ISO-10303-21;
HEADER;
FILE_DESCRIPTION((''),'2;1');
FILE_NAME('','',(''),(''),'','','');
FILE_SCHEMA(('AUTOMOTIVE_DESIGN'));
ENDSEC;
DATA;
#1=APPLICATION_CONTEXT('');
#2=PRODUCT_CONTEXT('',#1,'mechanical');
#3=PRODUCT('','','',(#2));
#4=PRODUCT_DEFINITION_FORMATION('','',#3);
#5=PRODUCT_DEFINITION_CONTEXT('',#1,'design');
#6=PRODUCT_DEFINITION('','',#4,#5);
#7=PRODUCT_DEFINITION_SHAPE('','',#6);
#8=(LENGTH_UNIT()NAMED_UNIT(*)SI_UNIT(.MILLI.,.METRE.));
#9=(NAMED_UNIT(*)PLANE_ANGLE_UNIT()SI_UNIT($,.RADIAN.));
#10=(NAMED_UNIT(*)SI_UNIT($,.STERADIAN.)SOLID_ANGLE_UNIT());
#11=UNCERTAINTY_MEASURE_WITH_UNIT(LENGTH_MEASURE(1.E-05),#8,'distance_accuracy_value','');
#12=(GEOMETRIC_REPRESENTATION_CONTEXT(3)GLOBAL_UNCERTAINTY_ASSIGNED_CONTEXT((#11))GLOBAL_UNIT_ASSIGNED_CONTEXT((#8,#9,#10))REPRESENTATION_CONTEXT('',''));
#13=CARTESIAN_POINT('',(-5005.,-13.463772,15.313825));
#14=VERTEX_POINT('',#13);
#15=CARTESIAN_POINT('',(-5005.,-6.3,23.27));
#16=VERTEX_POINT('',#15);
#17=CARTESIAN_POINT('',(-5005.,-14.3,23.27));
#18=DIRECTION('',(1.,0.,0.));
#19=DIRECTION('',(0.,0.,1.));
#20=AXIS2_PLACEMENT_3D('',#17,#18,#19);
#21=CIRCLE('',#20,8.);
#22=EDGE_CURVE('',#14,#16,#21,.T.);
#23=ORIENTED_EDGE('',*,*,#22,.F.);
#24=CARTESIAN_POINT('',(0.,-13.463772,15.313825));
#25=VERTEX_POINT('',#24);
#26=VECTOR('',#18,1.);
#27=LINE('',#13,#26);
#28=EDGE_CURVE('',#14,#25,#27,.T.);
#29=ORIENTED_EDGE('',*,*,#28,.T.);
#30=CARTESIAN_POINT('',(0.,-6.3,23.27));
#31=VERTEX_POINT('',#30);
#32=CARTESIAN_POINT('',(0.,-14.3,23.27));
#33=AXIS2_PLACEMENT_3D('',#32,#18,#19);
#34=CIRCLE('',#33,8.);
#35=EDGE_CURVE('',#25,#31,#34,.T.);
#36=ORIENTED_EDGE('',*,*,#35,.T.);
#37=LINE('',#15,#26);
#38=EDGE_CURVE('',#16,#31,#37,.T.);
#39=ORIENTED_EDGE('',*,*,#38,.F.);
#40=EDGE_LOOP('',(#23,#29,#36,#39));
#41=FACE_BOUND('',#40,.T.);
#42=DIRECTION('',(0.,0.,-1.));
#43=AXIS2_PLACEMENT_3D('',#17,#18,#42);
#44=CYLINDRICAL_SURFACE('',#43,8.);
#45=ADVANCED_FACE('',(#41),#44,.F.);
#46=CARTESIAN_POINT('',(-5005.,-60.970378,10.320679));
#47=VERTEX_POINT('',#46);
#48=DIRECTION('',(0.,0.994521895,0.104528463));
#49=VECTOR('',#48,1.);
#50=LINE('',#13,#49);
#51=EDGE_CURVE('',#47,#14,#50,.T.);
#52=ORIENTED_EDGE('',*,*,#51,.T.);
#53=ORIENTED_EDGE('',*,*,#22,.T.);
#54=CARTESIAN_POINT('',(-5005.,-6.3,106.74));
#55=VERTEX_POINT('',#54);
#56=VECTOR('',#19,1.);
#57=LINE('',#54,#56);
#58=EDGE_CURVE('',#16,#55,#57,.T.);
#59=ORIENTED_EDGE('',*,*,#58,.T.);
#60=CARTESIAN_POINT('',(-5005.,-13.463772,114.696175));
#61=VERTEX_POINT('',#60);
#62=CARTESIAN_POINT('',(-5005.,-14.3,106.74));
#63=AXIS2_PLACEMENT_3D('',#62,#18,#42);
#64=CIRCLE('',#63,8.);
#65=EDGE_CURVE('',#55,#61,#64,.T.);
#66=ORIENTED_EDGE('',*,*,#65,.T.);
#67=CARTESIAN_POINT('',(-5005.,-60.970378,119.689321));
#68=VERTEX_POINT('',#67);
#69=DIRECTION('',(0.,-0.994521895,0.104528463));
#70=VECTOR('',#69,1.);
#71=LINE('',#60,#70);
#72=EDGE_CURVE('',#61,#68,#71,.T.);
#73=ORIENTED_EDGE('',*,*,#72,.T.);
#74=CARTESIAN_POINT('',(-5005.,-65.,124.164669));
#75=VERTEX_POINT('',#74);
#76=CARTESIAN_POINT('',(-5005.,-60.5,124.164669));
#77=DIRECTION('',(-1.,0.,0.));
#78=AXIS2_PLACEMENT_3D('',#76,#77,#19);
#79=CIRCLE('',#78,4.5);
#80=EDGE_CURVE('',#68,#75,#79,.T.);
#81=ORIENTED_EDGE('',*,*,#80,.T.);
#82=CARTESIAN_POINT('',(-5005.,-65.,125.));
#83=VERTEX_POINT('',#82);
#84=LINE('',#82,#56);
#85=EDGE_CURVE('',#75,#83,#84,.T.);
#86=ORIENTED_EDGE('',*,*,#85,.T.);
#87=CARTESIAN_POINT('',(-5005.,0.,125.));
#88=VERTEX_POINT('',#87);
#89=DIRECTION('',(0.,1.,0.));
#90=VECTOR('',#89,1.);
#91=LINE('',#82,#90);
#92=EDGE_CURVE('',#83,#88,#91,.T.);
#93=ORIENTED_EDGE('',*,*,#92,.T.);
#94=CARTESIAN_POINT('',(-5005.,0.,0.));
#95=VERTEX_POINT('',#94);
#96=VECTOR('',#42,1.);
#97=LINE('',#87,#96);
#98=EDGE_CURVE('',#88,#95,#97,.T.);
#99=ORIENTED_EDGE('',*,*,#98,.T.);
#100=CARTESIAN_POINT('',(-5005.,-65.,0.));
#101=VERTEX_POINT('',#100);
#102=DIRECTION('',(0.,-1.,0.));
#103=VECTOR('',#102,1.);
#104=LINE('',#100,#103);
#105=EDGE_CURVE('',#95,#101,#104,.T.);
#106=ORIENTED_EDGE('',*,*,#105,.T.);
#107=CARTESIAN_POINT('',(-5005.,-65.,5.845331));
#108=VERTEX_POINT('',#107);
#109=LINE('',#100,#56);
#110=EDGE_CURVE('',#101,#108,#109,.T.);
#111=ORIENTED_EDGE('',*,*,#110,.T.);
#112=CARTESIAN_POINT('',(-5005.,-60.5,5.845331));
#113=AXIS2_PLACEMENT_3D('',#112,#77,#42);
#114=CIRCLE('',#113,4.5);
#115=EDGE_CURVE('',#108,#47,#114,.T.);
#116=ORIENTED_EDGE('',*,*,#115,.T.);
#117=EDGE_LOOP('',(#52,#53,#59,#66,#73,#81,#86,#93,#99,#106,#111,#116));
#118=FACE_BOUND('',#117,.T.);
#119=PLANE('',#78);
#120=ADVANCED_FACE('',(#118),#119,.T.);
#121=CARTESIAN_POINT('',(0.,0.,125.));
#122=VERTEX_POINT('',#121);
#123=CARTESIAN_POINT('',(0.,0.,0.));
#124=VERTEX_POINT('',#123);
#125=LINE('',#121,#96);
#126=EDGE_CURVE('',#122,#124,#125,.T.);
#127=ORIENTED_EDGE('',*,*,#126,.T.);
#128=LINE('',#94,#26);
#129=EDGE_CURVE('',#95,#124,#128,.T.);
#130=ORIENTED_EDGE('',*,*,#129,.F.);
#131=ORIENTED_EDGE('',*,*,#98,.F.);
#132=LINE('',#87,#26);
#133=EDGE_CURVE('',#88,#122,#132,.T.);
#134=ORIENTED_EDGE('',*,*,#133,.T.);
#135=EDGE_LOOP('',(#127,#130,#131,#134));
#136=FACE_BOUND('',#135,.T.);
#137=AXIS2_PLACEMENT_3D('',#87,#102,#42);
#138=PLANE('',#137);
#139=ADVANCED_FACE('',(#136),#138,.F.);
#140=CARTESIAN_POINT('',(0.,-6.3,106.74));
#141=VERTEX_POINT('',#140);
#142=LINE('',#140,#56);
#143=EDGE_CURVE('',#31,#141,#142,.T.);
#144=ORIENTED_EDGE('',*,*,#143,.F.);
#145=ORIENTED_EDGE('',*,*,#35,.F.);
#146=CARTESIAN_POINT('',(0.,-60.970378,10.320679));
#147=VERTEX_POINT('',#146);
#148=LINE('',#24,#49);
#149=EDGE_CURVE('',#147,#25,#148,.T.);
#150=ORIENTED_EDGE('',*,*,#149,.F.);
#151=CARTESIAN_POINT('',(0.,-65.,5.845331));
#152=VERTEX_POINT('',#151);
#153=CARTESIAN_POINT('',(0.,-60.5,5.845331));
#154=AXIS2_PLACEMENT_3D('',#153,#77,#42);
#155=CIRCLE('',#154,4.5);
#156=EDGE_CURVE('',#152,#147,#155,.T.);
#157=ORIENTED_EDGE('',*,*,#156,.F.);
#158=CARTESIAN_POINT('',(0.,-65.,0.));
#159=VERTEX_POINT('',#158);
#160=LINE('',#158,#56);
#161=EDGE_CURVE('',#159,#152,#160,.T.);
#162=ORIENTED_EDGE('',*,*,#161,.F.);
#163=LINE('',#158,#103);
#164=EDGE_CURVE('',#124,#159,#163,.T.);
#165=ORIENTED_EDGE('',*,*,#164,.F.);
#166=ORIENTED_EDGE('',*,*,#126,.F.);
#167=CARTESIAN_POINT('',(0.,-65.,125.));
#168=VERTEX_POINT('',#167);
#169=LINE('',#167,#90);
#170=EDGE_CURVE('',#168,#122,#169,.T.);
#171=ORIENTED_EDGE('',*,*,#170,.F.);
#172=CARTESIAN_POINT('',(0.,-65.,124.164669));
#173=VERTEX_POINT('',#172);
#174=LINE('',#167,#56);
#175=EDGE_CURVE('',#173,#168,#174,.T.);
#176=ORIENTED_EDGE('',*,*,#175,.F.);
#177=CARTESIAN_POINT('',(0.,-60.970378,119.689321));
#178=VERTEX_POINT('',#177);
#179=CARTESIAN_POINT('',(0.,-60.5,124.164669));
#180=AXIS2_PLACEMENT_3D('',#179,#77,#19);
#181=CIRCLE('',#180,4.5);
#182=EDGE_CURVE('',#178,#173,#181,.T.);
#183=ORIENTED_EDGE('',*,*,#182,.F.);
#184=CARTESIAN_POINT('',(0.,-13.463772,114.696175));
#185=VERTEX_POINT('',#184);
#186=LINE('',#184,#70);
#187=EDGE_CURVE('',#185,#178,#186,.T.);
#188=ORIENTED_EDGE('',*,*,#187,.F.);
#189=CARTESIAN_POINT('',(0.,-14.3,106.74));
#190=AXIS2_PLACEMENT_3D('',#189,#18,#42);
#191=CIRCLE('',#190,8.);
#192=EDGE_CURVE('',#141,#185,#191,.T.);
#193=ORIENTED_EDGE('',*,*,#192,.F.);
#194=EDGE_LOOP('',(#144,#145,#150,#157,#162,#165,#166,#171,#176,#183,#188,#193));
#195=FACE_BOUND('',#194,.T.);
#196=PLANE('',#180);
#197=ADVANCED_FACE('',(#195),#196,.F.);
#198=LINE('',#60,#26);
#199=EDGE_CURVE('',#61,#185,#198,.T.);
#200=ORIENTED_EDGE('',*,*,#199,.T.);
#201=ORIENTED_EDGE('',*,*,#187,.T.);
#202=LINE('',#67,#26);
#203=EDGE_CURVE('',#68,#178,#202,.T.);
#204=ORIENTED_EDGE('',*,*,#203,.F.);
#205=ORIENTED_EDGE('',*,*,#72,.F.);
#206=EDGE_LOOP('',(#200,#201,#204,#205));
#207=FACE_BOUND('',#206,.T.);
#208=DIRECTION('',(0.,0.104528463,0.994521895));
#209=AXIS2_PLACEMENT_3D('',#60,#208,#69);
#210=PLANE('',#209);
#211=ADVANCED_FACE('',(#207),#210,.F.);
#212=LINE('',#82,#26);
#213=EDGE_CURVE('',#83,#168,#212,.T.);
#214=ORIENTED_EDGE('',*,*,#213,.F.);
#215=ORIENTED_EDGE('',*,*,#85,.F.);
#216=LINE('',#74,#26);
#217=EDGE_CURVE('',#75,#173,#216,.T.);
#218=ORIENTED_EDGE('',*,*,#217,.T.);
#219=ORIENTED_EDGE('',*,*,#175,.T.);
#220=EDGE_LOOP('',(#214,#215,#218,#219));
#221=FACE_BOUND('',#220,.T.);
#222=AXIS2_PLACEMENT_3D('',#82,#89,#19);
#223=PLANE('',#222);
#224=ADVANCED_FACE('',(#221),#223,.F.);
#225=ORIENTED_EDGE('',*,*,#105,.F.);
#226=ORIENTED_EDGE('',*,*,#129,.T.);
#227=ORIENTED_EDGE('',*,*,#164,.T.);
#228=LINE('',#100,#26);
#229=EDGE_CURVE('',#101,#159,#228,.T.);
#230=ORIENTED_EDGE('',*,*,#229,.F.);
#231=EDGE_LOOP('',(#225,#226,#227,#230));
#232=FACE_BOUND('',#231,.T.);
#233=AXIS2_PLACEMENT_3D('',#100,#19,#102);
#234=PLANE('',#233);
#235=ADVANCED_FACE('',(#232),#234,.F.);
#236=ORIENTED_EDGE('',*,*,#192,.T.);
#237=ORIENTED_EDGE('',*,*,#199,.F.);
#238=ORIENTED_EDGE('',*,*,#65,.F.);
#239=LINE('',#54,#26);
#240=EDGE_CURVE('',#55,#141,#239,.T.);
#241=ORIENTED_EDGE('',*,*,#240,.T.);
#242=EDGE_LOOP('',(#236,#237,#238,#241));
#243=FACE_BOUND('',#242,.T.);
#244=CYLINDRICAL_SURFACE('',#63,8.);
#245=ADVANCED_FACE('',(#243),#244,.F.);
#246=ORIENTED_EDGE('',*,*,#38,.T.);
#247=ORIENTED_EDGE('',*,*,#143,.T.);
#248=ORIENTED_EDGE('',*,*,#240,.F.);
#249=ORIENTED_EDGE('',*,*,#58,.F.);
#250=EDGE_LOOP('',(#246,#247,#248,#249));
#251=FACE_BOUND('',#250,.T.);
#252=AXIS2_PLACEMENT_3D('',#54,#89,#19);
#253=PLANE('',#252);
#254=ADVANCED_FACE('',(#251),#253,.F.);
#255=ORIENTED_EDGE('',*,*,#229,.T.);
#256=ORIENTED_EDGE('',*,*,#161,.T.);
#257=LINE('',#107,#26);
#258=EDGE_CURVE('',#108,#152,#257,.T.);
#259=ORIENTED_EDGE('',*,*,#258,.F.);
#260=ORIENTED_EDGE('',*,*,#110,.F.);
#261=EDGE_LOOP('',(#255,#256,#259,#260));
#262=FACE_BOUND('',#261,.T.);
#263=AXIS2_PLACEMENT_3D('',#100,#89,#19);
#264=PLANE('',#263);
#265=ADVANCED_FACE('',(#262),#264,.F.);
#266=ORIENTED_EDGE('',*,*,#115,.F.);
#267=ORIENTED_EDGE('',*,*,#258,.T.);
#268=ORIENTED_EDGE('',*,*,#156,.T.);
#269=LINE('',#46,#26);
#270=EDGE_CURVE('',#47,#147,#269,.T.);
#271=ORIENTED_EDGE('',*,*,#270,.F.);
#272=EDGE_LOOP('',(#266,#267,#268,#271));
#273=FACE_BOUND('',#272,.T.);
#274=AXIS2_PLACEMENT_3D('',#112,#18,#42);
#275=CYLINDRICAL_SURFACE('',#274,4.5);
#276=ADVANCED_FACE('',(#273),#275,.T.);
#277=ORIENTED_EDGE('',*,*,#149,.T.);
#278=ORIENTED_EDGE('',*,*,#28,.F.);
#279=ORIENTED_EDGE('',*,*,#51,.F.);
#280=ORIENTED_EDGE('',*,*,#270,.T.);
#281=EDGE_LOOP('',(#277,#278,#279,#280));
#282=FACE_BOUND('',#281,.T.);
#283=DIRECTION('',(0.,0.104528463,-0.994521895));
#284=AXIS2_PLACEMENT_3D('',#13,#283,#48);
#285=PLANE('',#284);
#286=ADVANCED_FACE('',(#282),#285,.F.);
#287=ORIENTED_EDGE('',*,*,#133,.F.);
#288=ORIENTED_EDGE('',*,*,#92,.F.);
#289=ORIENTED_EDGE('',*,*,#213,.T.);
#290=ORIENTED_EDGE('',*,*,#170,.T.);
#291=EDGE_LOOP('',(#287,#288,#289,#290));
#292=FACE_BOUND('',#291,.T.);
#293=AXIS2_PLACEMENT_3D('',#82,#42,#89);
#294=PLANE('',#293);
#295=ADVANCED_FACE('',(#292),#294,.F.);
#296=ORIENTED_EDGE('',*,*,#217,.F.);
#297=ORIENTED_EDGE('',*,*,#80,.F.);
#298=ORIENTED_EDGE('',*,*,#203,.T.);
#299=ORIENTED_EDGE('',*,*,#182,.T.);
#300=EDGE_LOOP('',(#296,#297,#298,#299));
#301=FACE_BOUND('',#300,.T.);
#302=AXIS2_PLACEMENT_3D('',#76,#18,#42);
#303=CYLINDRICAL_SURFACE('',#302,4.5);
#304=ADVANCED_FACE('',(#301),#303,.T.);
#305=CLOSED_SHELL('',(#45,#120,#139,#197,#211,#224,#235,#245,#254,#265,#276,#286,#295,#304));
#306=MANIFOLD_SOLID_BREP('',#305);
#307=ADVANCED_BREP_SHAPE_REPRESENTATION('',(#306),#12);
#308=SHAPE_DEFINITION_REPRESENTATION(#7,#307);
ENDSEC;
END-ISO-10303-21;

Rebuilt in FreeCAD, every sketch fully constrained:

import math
import FreeCAD as App
import Part
import Sketcher
Q = App.Units.Quantity

doc = App.newDocument("Part")
params = doc.addObject("Spreadsheet::Sheet", "Params")
for row, (alias, value) in enumerate([
    ("sketch1_radius", "8 mm"),
    ("sketch1_radius2", "4.5 mm"),
    ("sketch1_width", "65 mm"),
    ("sketch1_height", "125 mm"),
    ("sketch1_height2", "83.47 mm"),
    ("pad1_length", "5005 mm"),
], start=1):
    params.set(f"A{row}", alias)
    params.set(f"B{row}", "=" + value)
    params.setAlias(f"B{row}", alias)

body = doc.addObject("PartDesign::Body", "Body")

# Sketch on YZ plane
sketch1 = body.newObject("Sketcher::SketchObject", "Sketch")
sketch1.AttachmentSupport = (doc.getObject("YZ_Plane"), [""])
sketch1.MapMode = "FlatFace"
sketch1.addGeometry([
    Part.LineSegment(App.Vector(-65, 125, 0), App.Vector(0, 125, 0)),  # 0
    Part.LineSegment(App.Vector(0, 125, 0), App.Vector(0, 0, 0)),  # 1
    Part.LineSegment(App.Vector(0, 0, 0), App.Vector(-65, 0, 0)),  # 2
    Part.LineSegment(App.Vector(-65, 0, 0), App.Vector(-65, 5.8, 0)),  # 3
    Part.ArcOfCircle(Part.Circle(App.Vector(-60.5, 5.8, 0), App.Vector(0, 0, 1), 4.5), math.radians(96), math.radians(180)),  # 4
    Part.LineSegment(App.Vector(-61, 10.3, 0), App.Vector(-13.5, 15.3, 0)),  # 5
    Part.ArcOfCircle(Part.Circle(App.Vector(-14.3, 23.3, 0), App.Vector(0, 0, 1), 8), math.radians(-84), math.radians(0)),  # 6
    Part.LineSegment(App.Vector(-6.3, 23.3, 0), App.Vector(-6.3, 106.7, 0)),  # 7
    Part.ArcOfCircle(Part.Circle(App.Vector(-14.3, 106.7, 0), App.Vector(0, 0, 1), 8), math.radians(0), math.radians(84)),  # 8
    Part.LineSegment(App.Vector(-13.5, 114.7, 0), App.Vector(-61, 119.7, 0)),  # 9
    Part.ArcOfCircle(Part.Circle(App.Vector(-60.5, 124.2, 0), App.Vector(0, 0, 1), 4.5), math.radians(180), math.radians(264)),  # 10
    Part.LineSegment(App.Vector(-65, 124.2, 0), App.Vector(-65, 125, 0)),  # 11
], False)
sketch1.addConstraint([
    Sketcher.Constraint("Coincident", 0, 2, 1, 1),
    Sketcher.Constraint("Coincident", 1, 2, 2, 1),
    Sketcher.Constraint("Coincident", 2, 2, 3, 1),
    Sketcher.Constraint("Tangent", 3, 2, 4, 2),
    Sketcher.Constraint("Tangent", 4, 1, 5, 1),
    Sketcher.Constraint("Tangent", 5, 2, 6, 1),
    Sketcher.Constraint("Tangent", 6, 2, 7, 1),
    Sketcher.Constraint("Tangent", 7, 2, 8, 1),
    Sketcher.Constraint("Tangent", 8, 2, 9, 1),
    Sketcher.Constraint("Tangent", 9, 2, 10, 2),
    Sketcher.Constraint("Tangent", 10, 1, 11, 1),
    Sketcher.Constraint("Coincident", 11, 2, 0, 1),
    Sketcher.Constraint("Horizontal", 0),
    Sketcher.Constraint("Vertical", 1),
    Sketcher.Constraint("Horizontal", 2),
    Sketcher.Constraint("Vertical", 3),
    Sketcher.Constraint("Vertical", 7),
    Sketcher.Constraint("Vertical", 11),
    Sketcher.Constraint("Coincident", 1, 2, -1, 1),
    Sketcher.Constraint("Equal", 6, 8),
    Sketcher.Constraint("Equal", 4, 10),
    Sketcher.Constraint("Vertical", 4, 3, 10, 3),
    Sketcher.Constraint("Vertical", 5, 2, 8, 2),
    Sketcher.Constraint("Radius", 6, 8.0),
    Sketcher.Constraint("Radius", 4, 4.5),
    Sketcher.Constraint("DistanceX", 0, 1, 0, 2, 65.0),
    Sketcher.Constraint("DistanceY", 1, 2, 1, 1, 125.0),
    Sketcher.Constraint("Angle", 5, Q("6 deg")),
    Sketcher.Constraint("DistanceY", 7, 1, 7, 2, 83.47),
    Sketcher.Constraint("DistanceX", 6, 3, -1, 1, 14.3),
    Sketcher.Constraint("DistanceY", -1, 1, 6, 3, 23.27),
])
sketch1.setExpression("Constraints[23]", "Params.sketch1_radius")
sketch1.setExpression("Constraints[24]", "Params.sketch1_radius2")
sketch1.setExpression("Constraints[25]", "Params.sketch1_width")
sketch1.setExpression("Constraints[26]", "Params.sketch1_height")
sketch1.setExpression("Constraints[28]", "Params.sketch1_height2")
pad1 = body.newObject("PartDesign::Pad", "Pad")
pad1.Profile = sketch1
pad1.setExpression("Length", "Params.pad1_length")
pad1.Reversed = True

doc.recompute()
